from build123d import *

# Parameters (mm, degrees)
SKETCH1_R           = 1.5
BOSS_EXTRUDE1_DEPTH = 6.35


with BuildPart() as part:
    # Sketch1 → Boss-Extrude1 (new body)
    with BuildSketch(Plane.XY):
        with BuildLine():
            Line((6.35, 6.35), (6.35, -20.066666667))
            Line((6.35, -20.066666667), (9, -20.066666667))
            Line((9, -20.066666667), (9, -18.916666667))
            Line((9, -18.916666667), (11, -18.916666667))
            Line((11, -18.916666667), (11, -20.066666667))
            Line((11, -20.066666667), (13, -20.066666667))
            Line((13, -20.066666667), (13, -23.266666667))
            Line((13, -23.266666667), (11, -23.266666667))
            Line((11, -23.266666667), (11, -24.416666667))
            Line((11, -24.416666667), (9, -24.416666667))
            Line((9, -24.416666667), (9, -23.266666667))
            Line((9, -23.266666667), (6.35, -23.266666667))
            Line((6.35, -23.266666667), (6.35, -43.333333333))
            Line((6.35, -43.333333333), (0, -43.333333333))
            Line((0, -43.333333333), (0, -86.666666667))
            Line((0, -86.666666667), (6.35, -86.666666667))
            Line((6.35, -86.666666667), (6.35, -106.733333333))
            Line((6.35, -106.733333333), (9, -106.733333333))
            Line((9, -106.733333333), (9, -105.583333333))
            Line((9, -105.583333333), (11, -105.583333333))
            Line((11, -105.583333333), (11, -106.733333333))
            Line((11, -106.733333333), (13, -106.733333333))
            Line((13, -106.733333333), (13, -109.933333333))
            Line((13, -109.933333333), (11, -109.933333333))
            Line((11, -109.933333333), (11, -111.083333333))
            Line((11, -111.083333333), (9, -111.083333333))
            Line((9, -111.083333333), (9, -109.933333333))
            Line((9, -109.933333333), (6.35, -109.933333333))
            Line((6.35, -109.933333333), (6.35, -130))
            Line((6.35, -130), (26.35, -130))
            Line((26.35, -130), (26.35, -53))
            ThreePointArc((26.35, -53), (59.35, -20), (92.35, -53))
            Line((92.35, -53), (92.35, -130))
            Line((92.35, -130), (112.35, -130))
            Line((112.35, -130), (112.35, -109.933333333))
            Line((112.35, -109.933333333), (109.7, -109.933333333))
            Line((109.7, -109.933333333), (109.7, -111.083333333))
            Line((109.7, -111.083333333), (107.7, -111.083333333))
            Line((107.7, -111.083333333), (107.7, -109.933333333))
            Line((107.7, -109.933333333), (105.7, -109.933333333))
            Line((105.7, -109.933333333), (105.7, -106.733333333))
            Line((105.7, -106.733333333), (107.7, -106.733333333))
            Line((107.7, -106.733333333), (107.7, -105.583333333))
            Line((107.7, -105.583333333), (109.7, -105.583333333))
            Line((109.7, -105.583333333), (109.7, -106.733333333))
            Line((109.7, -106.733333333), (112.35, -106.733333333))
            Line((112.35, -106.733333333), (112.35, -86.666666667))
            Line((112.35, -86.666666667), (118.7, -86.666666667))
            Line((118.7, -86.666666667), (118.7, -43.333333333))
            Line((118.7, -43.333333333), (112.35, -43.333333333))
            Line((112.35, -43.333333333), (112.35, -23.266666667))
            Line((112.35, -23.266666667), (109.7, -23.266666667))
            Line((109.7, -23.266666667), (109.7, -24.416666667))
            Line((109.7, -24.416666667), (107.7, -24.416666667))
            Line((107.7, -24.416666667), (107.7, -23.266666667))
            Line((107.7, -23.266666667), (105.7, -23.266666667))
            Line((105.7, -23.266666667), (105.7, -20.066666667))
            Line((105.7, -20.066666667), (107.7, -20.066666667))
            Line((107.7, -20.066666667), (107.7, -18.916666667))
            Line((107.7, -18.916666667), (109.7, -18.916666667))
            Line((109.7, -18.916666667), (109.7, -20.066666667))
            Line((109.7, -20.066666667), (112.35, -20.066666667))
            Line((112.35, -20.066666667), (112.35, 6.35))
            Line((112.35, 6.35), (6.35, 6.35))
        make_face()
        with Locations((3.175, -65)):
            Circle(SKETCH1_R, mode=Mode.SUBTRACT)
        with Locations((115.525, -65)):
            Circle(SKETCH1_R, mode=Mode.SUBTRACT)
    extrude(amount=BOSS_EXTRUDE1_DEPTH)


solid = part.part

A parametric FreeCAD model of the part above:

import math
import FreeCAD as App
import Part
import Sketcher
Q = App.Units.Quantity

doc = App.newDocument("Part")
body = doc.addObject("PartDesign::Body", "Body")

sketch1 = body.newObject("Sketcher::SketchObject", "Sketch")
sketch1.AttachmentSupport = (doc.getObject("XY_Plane"), [""])
sketch1.MapMode = "FlatFace"
sketch1.addGeometry([
    Part.LineSegment(App.Vector(6.35, 6.35, 0), App.Vector(6.35, -20.066667, 0)),
    Part.LineSegment(App.Vector(6.35, -20.066667, 0), App.Vector(9, -20.066667, 0)),
    Part.LineSegment(App.Vector(9, -20.066667, 0), App.Vector(9, -18.916667, 0)),
    Part.LineSegment(App.Vector(9, -18.916667, 0), App.Vector(11, -18.916667, 0)),
    Part.LineSegment(App.Vector(11, -18.916667, 0), App.Vector(11, -20.066667, 0)),
    Part.LineSegment(App.Vector(11, -20.066667, 0), App.Vector(13, -20.066667, 0)),
    Part.LineSegment(App.Vector(13, -20.066667, 0), App.Vector(13, -23.266667, 0)),
    Part.LineSegment(App.Vector(13, -23.266667, 0), App.Vector(11, -23.266667, 0)),
    Part.LineSegment(App.Vector(11, -23.266667, 0), App.Vector(11, -24.416667, 0)),
    Part.LineSegment(App.Vector(11, -24.416667, 0), App.Vector(9, -24.416667, 0)),
    Part.LineSegment(App.Vector(9, -24.416667, 0), App.Vector(9, -23.266667, 0)),
    Part.LineSegment(App.Vector(9, -23.266667, 0), App.Vector(6.35, -23.266667, 0)),
    Part.LineSegment(App.Vector(6.35, -23.266667, 0), App.Vector(6.35, -43.333333, 0)),
    Part.LineSegment(App.Vector(6.35, -43.333333, 0), App.Vector(0, -43.333333, 0)),
    Part.LineSegment(App.Vector(0, -43.333333, 0), App.Vector(0, -86.666667, 0)),
    Part.LineSegment(App.Vector(0, -86.666667, 0), App.Vector(6.35, -86.666667, 0)),
    Part.LineSegment(App.Vector(6.35, -86.666667, 0), App.Vector(6.35, -106.733333, 0)),
    Part.LineSegment(App.Vector(6.35, -106.733333, 0), App.Vector(9, -106.733333, 0)),
    Part.LineSegment(App.Vector(9, -106.733333, 0), App.Vector(9, -105.583333, 0)),
    Part.LineSegment(App.Vector(9, -105.583333, 0), App.Vector(11, -105.583333, 0)),
    Part.LineSegment(App.Vector(11, -105.583333, 0), App.Vector(11, -106.733333, 0)),
    Part.LineSegment(App.Vector(11, -106.733333, 0), App.Vector(13, -106.733333, 0)),
    Part.LineSegment(App.Vector(13, -106.733333, 0), App.Vector(13, -109.933333, 0)),
    Part.LineSegment(App.Vector(13, -109.933333, 0), App.Vector(11, -109.933333, 0)),
    Part.LineSegment(App.Vector(11, -109.933333, 0), App.Vector(11, -111.083333, 0)),
    Part.LineSegment(App.Vector(11, -111.083333, 0), App.Vector(9, -111.083333, 0)),
    Part.LineSegment(App.Vector(9, -111.083333, 0), App.Vector(9, -109.933333, 0)),
    Part.LineSegment(App.Vector(9, -109.933333, 0), App.Vector(6.35, -109.933333, 0)),
    Part.LineSegment(App.Vector(6.35, -109.933333, 0), App.Vector(6.35, -130, 0)),
    Part.LineSegment(App.Vector(6.35, -130, 0), App.Vector(26.35, -130, 0)),
    Part.LineSegment(App.Vector(26.35, -130, 0), App.Vector(26.35, -53, 0)),
    Part.ArcOfCircle(Part.Circle(App.Vector(59.35, -53, 0), App.Vector(0, 0, 1), 33), math.radians(0), math.radians(180)),
    Part.LineSegment(App.Vector(92.35, -53, 0), App.Vector(92.35, -130, 0)),
    Part.LineSegment(App.Vector(92.35, -130, 0), App.Vector(112.35, -130, 0)),
    Part.LineSegment(App.Vector(112.35, -130, 0), App.Vector(112.35, -109.933333, 0)),
    Part.LineSegment(App.Vector(112.35, -109.933333, 0), App.Vector(109.7, -109.933333, 0)),
    Part.LineSegment(App.Vector(109.7, -109.933333, 0), App.Vector(109.7, -111.083333, 0)),
    Part.LineSegment(App.Vector(109.7, -111.083333, 0), App.Vector(107.7, -111.083333, 0)),
    Part.LineSegment(App.Vector(107.7, -111.083333, 0), App.Vector(107.7, -109.933333, 0)),
    Part.LineSegment(App.Vector(107.7, -109.933333, 0), App.Vector(105.7, -109.933333, 0)),
    Part.LineSegment(App.Vector(105.7, -109.933333, 0), App.Vector(105.7, -106.733333, 0)),
    Part.LineSegment(App.Vector(105.7, -106.733333, 0), App.Vector(107.7, -106.733333, 0)),
    Part.LineSegment(App.Vector(107.7, -106.733333, 0), App.Vector(107.7, -105.583333, 0)),
    Part.LineSegment(App.Vector(107.7, -105.583333, 0), App.Vector(109.7, -105.583333, 0)),
    Part.LineSegment(App.Vector(109.7, -105.583333, 0), App.Vector(109.7, -106.733333, 0)),
    Part.LineSegment(App.Vector(109.7, -106.733333, 0), App.Vector(112.35, -106.733333, 0)),
    Part.LineSegment(App.Vector(112.35, -106.733333, 0), App.Vector(112.35, -86.666667, 0)),
    Part.LineSegment(App.Vector(112.35, -86.666667, 0), App.Vector(118.7, -86.666667, 0)),
    Part.LineSegment(App.Vector(118.7, -86.666667, 0), App.Vector(118.7, -43.333333, 0)),
    Part.LineSegment(App.Vector(118.7, -43.333333, 0), App.Vector(112.35, -43.333333, 0)),
    Part.LineSegment(App.Vector(112.35, -43.333333, 0), App.Vector(112.35, -23.266667, 0)),
    Part.LineSegment(App.Vector(112.35, -23.266667, 0), App.Vector(109.7, -23.266667, 0)),
    Part.LineSegment(App.Vector(109.7, -23.266667, 0), App.Vector(109.7, -24.416667, 0)),
    Part.LineSegment(App.Vector(109.7, -24.416667, 0), App.Vector(107.7, -24.416667, 0)),
    Part.LineSegment(App.Vector(107.7, -24.416667, 0), App.Vector(107.7, -23.266667, 0)),
    Part.LineSegment(App.Vector(107.7, -23.266667, 0), App.Vector(105.7, -23.266667, 0)),
    Part.LineSegment(App.Vector(105.7, -23.266667, 0), App.Vector(105.7, -20.066667, 0)),
    Part.LineSegment(App.Vector(105.7, -20.066667, 0), App.Vector(107.7, -20.066667, 0)),
    Part.LineSegment(App.Vector(107.7, -20.066667, 0), App.Vector(107.7, -18.916667, 0)),
    Part.LineSegment(App.Vector(107.7, -18.916667, 0), App.Vector(109.7, -18.916667, 0)),
    Part.LineSegment(App.Vector(109.7, -18.916667, 0), App.Vector(109.7, -20.066667, 0)),
    Part.LineSegment(App.Vector(109.7, -20.066667, 0), App.Vector(112.35, -20.066667, 0)),
    Part.LineSegment(App.Vector(112.35, -20.066667, 0), App.Vector(112.35, 6.35, 0)),
    Part.LineSegment(App.Vector(112.35, 6.35, 0), App.Vector(6.35, 6.35, 0)),
    Part.Circle(App.Vector(3.175, -65, 0), App.Vector(0, 0, 1), 1.5),
    Part.Circle(App.Vector(115.525, -65, 0), App.Vector(0, 0, 1), 1.5),
], False)
sketch1.addConstraint([
    Sketcher.Constraint("Coincident", 0, 2, 1, 1),
    Sketcher.Constraint("Coincident", 1, 2, 2, 1),
    Sketcher.Constraint("Coincident", 2, 2, 3, 1),
    Sketcher.Constraint("Coincident", 3, 2, 4, 1),
    Sketcher.Constraint("Coincident", 4, 2, 5, 1),
    Sketcher.Constraint("Coincident", 5, 2, 6, 1),
    Sketcher.Constraint("Coincident", 6, 2, 7, 1),
    Sketcher.Constraint("Coincident", 7, 2, 8, 1),
    Sketcher.Constraint("Coincident", 8, 2, 9, 1),
    Sketcher.Constraint("Coincident", 9, 2, 10, 1),
    Sketcher.Constraint("Coincident", 10, 2, 11, 1),
    Sketcher.Constraint("Coincident", 11, 2, 12, 1),
    Sketcher.Constraint("Coincident", 12, 2, 13, 1),
    Sketcher.Constraint("Coincident", 13, 2, 14, 1),
    Sketcher.Constraint("Coincident", 14, 2, 15, 1),
    Sketcher.Constraint("Coincident", 15, 2, 16, 1),
    Sketcher.Constraint("Coincident", 16, 2, 17, 1),
    Sketcher.Constraint("Coincident", 17, 2, 18, 1),
    Sketcher.Constraint("Coincident", 18, 2, 19, 1),
    Sketcher.Constraint("Coincident", 19, 2, 20, 1),
    Sketcher.Constraint("Coincident", 20, 2, 21, 1),
    Sketcher.Constraint("Coincident", 21, 2, 22, 1),
    Sketcher.Constraint("Coincident", 22, 2, 23, 1),
    Sketcher.Constraint("Coincident", 23, 2, 24, 1),
    Sketcher.Constraint("Coincident", 24, 2, 25, 1),
    Sketcher.Constraint("Coincident", 25, 2, 26, 1),
    Sketcher.Constraint("Coincident", 26, 2, 27, 1),
    Sketcher.Constraint("Coincident", 27, 2, 28, 1),
    Sketcher.Constraint("Coincident", 28, 2, 29, 1),
    Sketcher.Constraint("Coincident", 29, 2, 30, 1),
    Sketcher.Constraint("Tangent", 30, 2, 31, 2),
    Sketcher.Constraint("Tangent", 31, 1, 32, 1),
    Sketcher.Constraint("Coincident", 32, 2, 33, 1),
    Sketcher.Constraint("Coincident", 33, 2, 34, 1),
    Sketcher.Constraint("Coincident", 34, 2, 35, 1),
    Sketcher.Constraint("Coincident", 35, 2, 36, 1),
    Sketcher.Constraint("Coincident", 36, 2, 37, 1),
    Sketcher.Constraint("Coincident", 37, 2, 38, 1),
    Sketcher.Constraint("Coincident", 38, 2, 39, 1),
    Sketcher.Constraint("Coincident", 39, 2, 40, 1),
    Sketcher.Constraint("Coincident", 40, 2, 41, 1),
    Sketcher.Constraint("Coincident", 41, 2, 42, 1),
    Sketcher.Constraint("Coincident", 42, 2, 43, 1),
    Sketcher.Constraint("Coincident", 43, 2, 44, 1),
    Sketcher.Constraint("Coincident", 44, 2, 45, 1),
    Sketcher.Constraint("Coincident", 45, 2, 46, 1),
    Sketcher.Constraint("Coincident", 46, 2, 47, 1),
    Sketcher.Constraint("Coincident", 47, 2, 48, 1),
    Sketcher.Constraint("Coincident", 48, 2, 49, 1),
    Sketcher.Constraint("Coincident", 49, 2, 50, 1),
    Sketcher.Constraint("Coincident", 50, 2, 51, 1),
    Sketcher.Constraint("Coincident", 51, 2, 52, 1),
    Sketcher.Constraint("Coincident", 52, 2, 53, 1),
    Sketcher.Constraint("Coincident", 53, 2, 54, 1),
    Sketcher.Constraint("Coincident", 54, 2, 55, 1),
    Sketcher.Constraint("Coincident", 55, 2, 56, 1),
    Sketcher.Constraint("Coincident", 56, 2, 57, 1),
    Sketcher.Constraint("Coincident", 57, 2, 58, 1),
    Sketcher.Constraint("Coincident", 58, 2, 59, 1),
    Sketcher.Constraint("Coincident", 59, 2, 60, 1),
    Sketcher.Constraint("Coincident", 60, 2, 61, 1),
    Sketcher.Constraint("Coincident", 61, 2, 62, 1),
    Sketcher.Constraint("Coincident", 62, 2, 63, 1),
    Sketcher.Constraint("Coincident", 63, 2, 0, 1),
    Sketcher.Constraint("Vertical", 0),
    Sketcher.Constraint("Horizontal", 1),
    Sketcher.Constraint("Vertical", 2),
    Sketcher.Constraint("Horizontal", 3),
    Sketcher.Constraint("Vertical", 4),
    Sketcher.Constraint("Horizontal", 5),
    Sketcher.Constraint("Vertical", 6),
    Sketcher.Constraint("Horizontal", 7),
    Sketcher.Constraint("Vertical", 8),
    Sketcher.Constraint("Horizontal", 9),
    Sketcher.Constraint("Vertical", 10),
    Sketcher.Constraint("Horizontal", 11),
    Sketcher.Constraint("Vertical", 12),
    Sketcher.Constraint("Horizontal", 13),
    Sketcher.Constraint("Vertical", 14),
    Sketcher.Constraint("Horizontal", 15),
    Sketcher.Constraint("Vertical", 16),
    Sketcher.Constraint("Horizontal", 17),
    Sketcher.Constraint("Vertical", 18),
    Sketcher.Constraint("Horizontal", 19),
    Sketcher.Constraint("Vertical", 20),
    Sketcher.Constraint("Horizontal", 21),
    Sketcher.Constraint("Vertical", 22),
    Sketcher.Constraint("Horizontal", 23),
    Sketcher.Constraint("Vertical", 24),
    Sketcher.Constraint("Horizontal", 25),
    Sketcher.Constraint("Vertical", 26),
    Sketcher.Constraint("Horizontal", 27),
    Sketcher.Constraint("Vertical", 28),
    Sketcher.Constraint("Horizontal", 29),
    Sketcher.Constraint("Vertical", 30),
    Sketcher.Constraint("Vertical", 32),
    Sketcher.Constraint("Horizontal", 33),
    Sketcher.Constraint("Vertical", 34),
    Sketcher.Constraint("Horizontal", 35),
    Sketcher.Constraint("Vertical", 36),
    Sketcher.Constraint("Horizontal", 37),
    Sketcher.Constraint("Vertical", 38),
    Sketcher.Constraint("Horizontal", 39),
    Sketcher.Constraint("Vertical", 40),
    Sketcher.Constraint("Horizontal", 41),
    Sketcher.Constraint("Vertical", 42),
    Sketcher.Constraint("Horizontal", 43),
    Sketcher.Constraint("Vertical", 44),
    Sketcher.Constraint("Horizontal", 45),
    Sketcher.Constraint("Vertical", 46),
    Sketcher.Constraint("Horizontal", 47),
    Sketcher.Constraint("Vertical", 48),
    Sketcher.Constraint("Horizontal", 49),
    Sketcher.Constraint("Vertical", 50),
    Sketcher.Constraint("Horizontal", 51),
    Sketcher.Constraint("Vertical", 52),
    Sketcher.Constraint("Horizontal", 53),
    Sketcher.Constraint("Vertical", 54),
    Sketcher.Constraint("Horizontal", 55),
    Sketcher.Constraint("Vertical", 56),
    Sketcher.Constraint("Horizontal", 57),
    Sketcher.Constraint("Vertical", 58),
    Sketcher.Constraint("Horizontal", 59),
    Sketcher.Constraint("Vertical", 60),
    Sketcher.Constraint("Horizontal", 61),
    Sketcher.Constraint("Vertical", 62),
    Sketcher.Constraint("Horizontal", 63),
    Sketcher.Constraint("Equal", 64, 65),
    Sketcher.Constraint("PointOnObject", 13, 2, -2),
    Sketcher.Constraint("Horizontal", 64, 3, 65, 3),
    Sketcher.Constraint("Horizontal", 1, 2, 4, 2),
    Sketcher.Constraint("Horizontal", 7, 2, 10, 2),
    Sketcher.Constraint("Horizontal", 17, 2, 20, 2),
    Sketcher.Constraint("Horizontal", 23, 2, 26, 2),
    Sketcher.Constraint("Horizontal", 29, 2, 32, 2),
    Sketcher.Constraint("Horizontal", 27, 2, 34, 2),
    Sketcher.Constraint("Horizontal", 25, 2, 36, 2),
    Sketcher.Constraint("Horizontal", 35, 2, 38, 2),
    Sketcher.Constraint("Horizontal", 21, 2, 40, 2),
    Sketcher.Constraint("Horizontal", 19, 2, 42, 2),
    Sketcher.Constraint("Horizontal", 41, 2, 44, 2),
    Sketcher.Constraint("Horizontal", 15, 2, 46, 2),
    Sketcher.Constraint("Horizontal", 13, 2, 48, 2),
    Sketcher.Constraint("Horizontal", 11, 2, 50, 2),
    Sketcher.Constraint("Horizontal", 9, 2, 52, 2),
    Sketcher.Constraint("Horizontal", 51, 2, 54, 2),
    Sketcher.Constraint("Horizontal", 5, 2, 56, 2),
    Sketcher.Constraint("Horizontal", 3, 2, 58, 2),
    Sketcher.Constraint("Horizontal", 57, 2, 60, 2),
    Sketcher.Constraint("Vertical", 4, 2, 7, 2),
    Sketcher.Constraint("Vertical", 2, 2, 9, 2),
    Sketcher.Constraint("Vertical", 0, 2, 11, 2),
    Sketcher.Constraint("Vertical", 12, 2, 15, 2),
    Sketcher.Constraint("Vertical", 10, 2, 17, 2),
    Sketcher.Constraint("Vertical", 8, 2, 19, 2),
    Sketcher.Constraint("Vertical", 6, 2, 21, 2),
    Sketcher.Constraint("Vertical", 20, 2, 23, 2),
    Sketcher.Constraint("Vertical", 18, 2, 25, 2),
    Sketcher.Constraint("Vertical", 16, 2, 27, 2),
    Sketcher.Constraint("Vertical", 38, 2, 41, 2),
    Sketcher.Constraint("Vertical", 36, 2, 43, 2),
    Sketcher.Constraint("Vertical", 34, 2, 45, 2),
    Sketcher.Constraint("Vertical", 46, 2, 49, 2),
    Sketcher.Constraint("Vertical", 44, 2, 51, 2),
    Sketcher.Constraint("Vertical", 42, 2, 53, 2),
    Sketcher.Constraint("Vertical", 40, 2, 55, 2),
    Sketcher.Constraint("Vertical", 54, 2, 57, 2),
    Sketcher.Constraint("Vertical", 52, 2, 59, 2),
    Sketcher.Constraint("Vertical", 50, 2, 61, 2),
    Sketcher.Constraint("Equal", 3, 5),
    Sketcher.Constraint("Equal", 29, 33),
    Sketcher.Constraint("Equal", 27, 35),
    Sketcher.Constraint("Equal", 25, 37),
    Sketcher.Constraint("Equal", 37, 39),
    Sketcher.Constraint("Equal", 15, 47),
    Sketcher.Constraint("Equal", 4, 8),
    Sketcher.Constraint("Equal", 12, 16),
    Sketcher.Constraint("Equal", 10, 18),
    Sketcher.Constraint("Equal", 6, 22),
    Sketcher.Constraint("Equal", 20, 24),
    Sketcher.Constraint("Equal", 16, 28),
    Sketcher.Constraint("Diameter", 64, Q("3 mm")),
    Sketcher.Constraint("Radius", 31, Q("33 mm")),
    Sketcher.Constraint("DistanceX", 3, 1, 3, 2, Q("2 mm")),
    Sketcher.Constraint("DistanceX", 29, 1, 29, 2, Q("20 mm")),
    Sketcher.Constraint("DistanceY", 30, 1, 30, 2, Q("77 mm")),
    Sketcher.Constraint("DistanceY", 6, 2, 6, 1, Q("3.2 mm")),
    Sketcher.Constraint("DistanceY", 31, 3, -1, 1, Q("53 mm")),
    Sketcher.Constraint("DistanceY", 64, 3, -1, 1, Q("65 mm")),
    Sketcher.Constraint("DistanceX", -1, 1, 1, 2, Q("9 mm")),
    Sketcher.Constraint("DistanceX", 1, 1, 1, 2, Q("2.65 mm")),
    Sketcher.Constraint("DistanceY", 2, 1, 2, 2, Q("1.15 mm")),
    Sketcher.Constraint("DistanceY", -1, 1, 62, 2, Q("6.35 mm")),
    Sketcher.Constraint("DistanceX", -1, 1, 64, 3, Q("3.175 mm")),
    Sketcher.Constraint("DistanceX", -1, 1, 65, 3, Q("115.525 mm")),
    Sketcher.Constraint("DistanceY", 0, 2, 0, 1, Q("26.416667 mm")),
    Sketcher.Constraint("DistanceY", 12, 2, 12, 1, Q("20.066667 mm")),
])
pad1 = body.newObject("PartDesign::Pad", "Pad")
pad1.Profile = sketch1
pad1.Length = 6.35

doc.recompute()
